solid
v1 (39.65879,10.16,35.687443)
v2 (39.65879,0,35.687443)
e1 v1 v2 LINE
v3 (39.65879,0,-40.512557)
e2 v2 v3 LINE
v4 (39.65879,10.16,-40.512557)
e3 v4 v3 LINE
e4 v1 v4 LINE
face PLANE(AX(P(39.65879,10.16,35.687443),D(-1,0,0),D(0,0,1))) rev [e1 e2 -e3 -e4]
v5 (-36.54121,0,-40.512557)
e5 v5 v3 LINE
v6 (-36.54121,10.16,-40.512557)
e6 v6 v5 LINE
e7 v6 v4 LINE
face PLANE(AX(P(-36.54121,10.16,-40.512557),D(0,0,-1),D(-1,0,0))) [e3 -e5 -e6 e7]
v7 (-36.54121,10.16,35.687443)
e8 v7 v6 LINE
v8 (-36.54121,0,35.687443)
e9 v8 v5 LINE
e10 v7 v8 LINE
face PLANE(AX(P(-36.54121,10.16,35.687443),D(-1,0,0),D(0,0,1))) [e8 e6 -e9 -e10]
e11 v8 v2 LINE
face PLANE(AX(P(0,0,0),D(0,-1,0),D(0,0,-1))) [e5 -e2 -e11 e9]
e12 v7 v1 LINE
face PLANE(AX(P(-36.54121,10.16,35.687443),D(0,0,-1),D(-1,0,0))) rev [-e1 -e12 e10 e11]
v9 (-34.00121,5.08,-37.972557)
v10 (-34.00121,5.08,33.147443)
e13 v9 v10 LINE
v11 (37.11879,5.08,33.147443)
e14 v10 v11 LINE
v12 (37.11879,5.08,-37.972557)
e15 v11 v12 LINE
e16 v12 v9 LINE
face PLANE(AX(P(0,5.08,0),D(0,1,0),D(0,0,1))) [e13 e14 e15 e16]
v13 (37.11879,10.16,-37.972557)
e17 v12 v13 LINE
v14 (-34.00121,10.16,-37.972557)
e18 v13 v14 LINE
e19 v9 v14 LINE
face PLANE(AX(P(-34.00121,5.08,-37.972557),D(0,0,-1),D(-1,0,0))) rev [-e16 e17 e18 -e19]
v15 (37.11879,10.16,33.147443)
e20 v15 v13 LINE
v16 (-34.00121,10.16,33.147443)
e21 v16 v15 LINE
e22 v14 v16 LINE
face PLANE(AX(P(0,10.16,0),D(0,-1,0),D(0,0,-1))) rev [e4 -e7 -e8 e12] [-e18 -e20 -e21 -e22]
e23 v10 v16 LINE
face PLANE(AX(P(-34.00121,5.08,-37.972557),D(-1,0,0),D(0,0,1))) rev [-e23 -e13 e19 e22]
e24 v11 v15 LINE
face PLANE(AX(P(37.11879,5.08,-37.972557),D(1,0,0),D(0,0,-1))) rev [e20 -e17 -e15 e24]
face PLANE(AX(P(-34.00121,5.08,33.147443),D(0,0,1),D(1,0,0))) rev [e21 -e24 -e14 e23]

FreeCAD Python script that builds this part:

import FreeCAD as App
import Part
import Sketcher

V = App.Vector
Q = App.Units.Quantity


def add_polygon(sketch, points):
    """Adds a closed chain of lines whose ends are joined by coincident constraints."""
    first, n = sketch.GeometryCount, len(points)
    for a, b in zip(points, points[1:] + points[:1]):
        sketch.addGeometry(Part.LineSegment(App.Vector(*a, 0), App.Vector(*b, 0)), False)
    for i in range(n):
        sketch.addConstraint(Sketcher.Constraint("Coincident", first + i, 2, first + (i + 1) % n, 1))

doc = App.newDocument("Part")
body = doc.addObject("PartDesign::Body", "Body")

# Sketch on XZ plane
sketch1 = body.newObject("Sketcher::SketchObject", "Sketch")
sketch1.AttachmentSupport = (doc.getObject("XZ_Plane"), [""])
sketch1.MapMode = "FlatFace"
add_polygon(sketch1, [(-36.54121, -40.512557), (-36.54121, 35.687443), (39.65879, 35.687443), (39.65879, -40.512557)])  # lines 0-3
sketch1.addConstraint(Sketcher.Constraint("Vertical", 0))
sketch1.addConstraint(Sketcher.Constraint("Horizontal", 1))
sketch1.addConstraint(Sketcher.Constraint("Vertical", 2))
sketch1.addConstraint(Sketcher.Constraint("Horizontal", 3))
sketch1.addConstraint(Sketcher.Constraint("Equal", 3, 0))
sketch1.addConstraint(Sketcher.Constraint("DistanceX", 1, 1, 1, 2, Q("3 in")))
sketch1.addConstraint(Sketcher.Constraint("DistanceX", 0, 2, -1, 1, Q("36.54121 mm")))
sketch1.addConstraint(Sketcher.Constraint("DistanceY", -1, 1, 0, 2, Q("35.687443 mm")))
pad1 = body.newObject("PartDesign::Pad", "Pad")
pad1.Profile = sketch1
pad1.Length = Q("0.4 in")
pad1.Reversed = True

# Sketch on XZ plane
sketch2 = body.newObject("Sketcher::SketchObject", "Sketch001")
sketch2.AttachmentSupport = (doc.getObject("XZ_Plane"), [""])
sketch2.MapMode = "FlatFace"
sketch2.AttachmentOffset = App.Placement(V(0, 0, -0.4 * 25.4), App.Rotation())
add_polygon(sketch2, [(-34.00121, -37.972557), (-34.00121, 33.147443), (37.11879, 33.147443), (37.11879, -37.972557)])  # lines 0-3
sketch2.addConstraint(Sketcher.Constraint("Vertical", 0))
sketch2.addConstraint(Sketcher.Constraint("Horizontal", 1))
sketch2.addConstraint(Sketcher.Constraint("Vertical", 2))
sketch2.addConstraint(Sketcher.Constraint("Horizontal", 3))
sketch2.addConstraint(Sketcher.Constraint("Equal", 3, 0))
sketch2.addConstraint(Sketcher.Constraint("DistanceX", 1, 1, 1, 2, Q("2.8 in")))
sketch2.addConstraint(Sketcher.Constraint("DistanceX", 0, 2, -1, 1, Q("34.00121 mm")))
sketch2.addConstraint(Sketcher.Constraint("DistanceY", -1, 1, 0, 2, Q("33.147443 mm")))
pocket1 = body.newObject("PartDesign::Pocket", "Pocket")
pocket1.Profile = sketch2
pocket1.Length = Q("0.2 in")
pocket1.Reversed = True

doc.recompute()
